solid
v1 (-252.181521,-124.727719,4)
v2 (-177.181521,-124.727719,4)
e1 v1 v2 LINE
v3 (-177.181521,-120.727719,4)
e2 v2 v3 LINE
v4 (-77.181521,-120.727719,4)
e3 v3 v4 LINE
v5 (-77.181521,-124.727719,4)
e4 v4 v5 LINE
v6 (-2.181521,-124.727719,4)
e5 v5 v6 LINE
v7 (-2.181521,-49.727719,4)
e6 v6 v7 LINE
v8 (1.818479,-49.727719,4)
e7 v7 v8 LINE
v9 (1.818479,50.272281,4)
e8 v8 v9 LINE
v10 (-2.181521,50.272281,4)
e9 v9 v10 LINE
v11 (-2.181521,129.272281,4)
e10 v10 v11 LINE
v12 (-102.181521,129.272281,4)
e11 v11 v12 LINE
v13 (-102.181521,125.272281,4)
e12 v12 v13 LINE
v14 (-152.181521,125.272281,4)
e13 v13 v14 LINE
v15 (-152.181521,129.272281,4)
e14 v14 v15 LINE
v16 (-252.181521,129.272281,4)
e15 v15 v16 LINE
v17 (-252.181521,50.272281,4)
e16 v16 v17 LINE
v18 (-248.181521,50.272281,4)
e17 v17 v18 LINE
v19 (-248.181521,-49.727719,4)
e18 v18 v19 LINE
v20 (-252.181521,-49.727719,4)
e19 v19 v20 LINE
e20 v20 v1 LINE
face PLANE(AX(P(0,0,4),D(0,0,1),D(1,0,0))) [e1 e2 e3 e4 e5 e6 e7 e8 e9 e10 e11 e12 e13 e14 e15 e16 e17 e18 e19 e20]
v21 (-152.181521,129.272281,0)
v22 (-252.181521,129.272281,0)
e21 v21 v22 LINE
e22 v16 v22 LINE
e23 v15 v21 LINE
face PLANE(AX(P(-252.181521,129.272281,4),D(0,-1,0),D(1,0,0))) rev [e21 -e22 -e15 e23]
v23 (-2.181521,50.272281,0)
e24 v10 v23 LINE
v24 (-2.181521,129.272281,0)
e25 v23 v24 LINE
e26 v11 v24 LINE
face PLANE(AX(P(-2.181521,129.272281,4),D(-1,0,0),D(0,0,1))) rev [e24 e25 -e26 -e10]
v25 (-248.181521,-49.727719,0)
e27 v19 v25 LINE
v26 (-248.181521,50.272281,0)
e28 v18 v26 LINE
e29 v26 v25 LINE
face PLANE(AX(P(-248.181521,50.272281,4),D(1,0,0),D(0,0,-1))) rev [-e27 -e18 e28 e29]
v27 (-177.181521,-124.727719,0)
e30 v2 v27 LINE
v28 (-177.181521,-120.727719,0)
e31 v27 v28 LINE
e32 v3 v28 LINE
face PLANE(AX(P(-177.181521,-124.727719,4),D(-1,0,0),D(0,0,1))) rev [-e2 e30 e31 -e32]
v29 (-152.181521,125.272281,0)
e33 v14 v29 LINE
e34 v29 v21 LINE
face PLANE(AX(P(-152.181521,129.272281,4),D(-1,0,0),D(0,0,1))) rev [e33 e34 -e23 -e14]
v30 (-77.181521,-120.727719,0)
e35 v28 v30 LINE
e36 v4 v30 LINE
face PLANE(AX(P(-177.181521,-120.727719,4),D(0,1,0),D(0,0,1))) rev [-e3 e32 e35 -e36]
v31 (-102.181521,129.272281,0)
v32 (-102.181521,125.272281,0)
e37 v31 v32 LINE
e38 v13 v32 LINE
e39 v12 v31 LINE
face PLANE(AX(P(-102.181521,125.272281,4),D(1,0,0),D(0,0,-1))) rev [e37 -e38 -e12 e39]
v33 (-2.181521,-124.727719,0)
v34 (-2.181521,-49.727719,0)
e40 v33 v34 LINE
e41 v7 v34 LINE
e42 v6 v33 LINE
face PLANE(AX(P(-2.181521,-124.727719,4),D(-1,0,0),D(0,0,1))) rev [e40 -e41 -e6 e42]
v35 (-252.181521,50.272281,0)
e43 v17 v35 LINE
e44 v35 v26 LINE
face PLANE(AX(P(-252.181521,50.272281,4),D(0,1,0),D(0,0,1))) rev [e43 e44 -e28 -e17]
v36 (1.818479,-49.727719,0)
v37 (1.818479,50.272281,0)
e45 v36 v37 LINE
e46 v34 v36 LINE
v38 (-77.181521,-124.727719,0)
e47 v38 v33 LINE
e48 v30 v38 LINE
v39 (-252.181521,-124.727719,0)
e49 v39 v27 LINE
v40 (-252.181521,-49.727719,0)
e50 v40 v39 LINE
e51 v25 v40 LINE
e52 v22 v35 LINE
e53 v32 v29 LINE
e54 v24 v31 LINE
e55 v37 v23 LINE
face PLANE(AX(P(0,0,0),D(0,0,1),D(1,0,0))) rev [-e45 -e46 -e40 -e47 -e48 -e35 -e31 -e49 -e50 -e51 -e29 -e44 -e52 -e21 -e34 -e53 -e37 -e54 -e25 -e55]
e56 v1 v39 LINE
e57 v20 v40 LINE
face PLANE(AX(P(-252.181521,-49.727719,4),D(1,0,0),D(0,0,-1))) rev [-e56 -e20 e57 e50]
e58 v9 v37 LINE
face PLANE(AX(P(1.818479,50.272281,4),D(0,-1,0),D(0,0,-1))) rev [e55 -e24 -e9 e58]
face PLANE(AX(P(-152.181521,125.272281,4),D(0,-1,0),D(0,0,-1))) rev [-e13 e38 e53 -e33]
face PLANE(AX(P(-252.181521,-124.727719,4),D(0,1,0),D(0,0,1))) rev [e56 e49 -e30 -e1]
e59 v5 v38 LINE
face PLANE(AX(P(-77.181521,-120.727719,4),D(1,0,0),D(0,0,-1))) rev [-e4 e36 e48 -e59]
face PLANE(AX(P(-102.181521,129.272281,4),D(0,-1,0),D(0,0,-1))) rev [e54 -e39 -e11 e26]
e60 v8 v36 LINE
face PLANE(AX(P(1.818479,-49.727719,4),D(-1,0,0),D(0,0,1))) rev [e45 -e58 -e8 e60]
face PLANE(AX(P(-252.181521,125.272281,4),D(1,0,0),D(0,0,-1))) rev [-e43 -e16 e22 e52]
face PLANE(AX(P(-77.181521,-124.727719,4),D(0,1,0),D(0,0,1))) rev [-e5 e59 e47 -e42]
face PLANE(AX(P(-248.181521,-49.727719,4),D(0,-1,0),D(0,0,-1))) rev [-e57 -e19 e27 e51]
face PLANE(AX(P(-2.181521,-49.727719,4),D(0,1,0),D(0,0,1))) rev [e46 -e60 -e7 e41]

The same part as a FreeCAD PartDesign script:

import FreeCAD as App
import Part
import Sketcher
from FreeCAD import Vector
Q = App.Units.Quantity

doc = App.newDocument("Part")
body = doc.addObject("PartDesign::Body", "Body")

sketch1 = body.newObject("Sketcher::SketchObject", "Sketch")
sketch1.AttachmentSupport = (doc.getObject("XY_Plane"), [""])
sketch1.MapMode = "FlatFace"
sketch1.addGeometry(Part.LineSegment(Vector(-2.2, -124.7, 0), Vector(-2.2, -49.7, 0)), False)
sketch1.addGeometry(Part.LineSegment(Vector(-2.2, -49.7, 0), Vector(1.8, -49.7, 0)), False)
sketch1.addGeometry(Part.LineSegment(Vector(1.8, -49.7, 0), Vector(1.8, 50.3, 0)), False)
sketch1.addGeometry(Part.LineSegment(Vector(1.8, 50.3, 0), Vector(-2.2, 50.3, 0)), False)
sketch1.addGeometry(Part.LineSegment(Vector(-2.2, 50.3, 0), Vector(-2.2, 129.3, 0)), False)
sketch1.addGeometry(Part.LineSegment(Vector(-2.2, 129.3, 0), Vector(-102.2, 129.3, 0)), False)
sketch1.addGeometry(Part.LineSegment(Vector(-102.2, 129.3, 0), Vector(-102.2, 125.3, 0)), False)
sketch1.addGeometry(Part.LineSegment(Vector(-102.2, 125.3, 0), Vector(-152.2, 125.3, 0)), False)
sketch1.addGeometry(Part.LineSegment(Vector(-152.2, 125.3, 0), Vector(-152.2, 129.3, 0)), False)
sketch1.addGeometry(Part.LineSegment(Vector(-152.2, 129.3, 0), Vector(-252.2, 129.3, 0)), False)
sketch1.addGeometry(Part.LineSegment(Vector(-252.2, 129.3, 0), Vector(-252.2, 50.3, 0)), False)
sketch1.addGeometry(Part.LineSegment(Vector(-252.2, 50.3, 0), Vector(-248.2, 50.3, 0)), False)
sketch1.addGeometry(Part.LineSegment(Vector(-248.2, 50.3, 0), Vector(-248.2, -49.7, 0)), False)
sketch1.addGeometry(Part.LineSegment(Vector(-248.2, -49.7, 0), Vector(-252.2, -49.7, 0)), False)
sketch1.addGeometry(Part.LineSegment(Vector(-252.2, -49.7, 0), Vector(-252.2, -124.7, 0)), False)
sketch1.addGeometry(Part.LineSegment(Vector(-252.2, -124.7, 0), Vector(-177.2, -124.7, 0)), False)
sketch1.addGeometry(Part.LineSegment(Vector(-177.2, -124.7, 0), Vector(-177.2, -120.7, 0)), False)
sketch1.addGeometry(Part.LineSegment(Vector(-177.2, -120.7, 0), Vector(-77.2, -120.7, 0)), False)
sketch1.addGeometry(Part.LineSegment(Vector(-77.2, -120.7, 0), Vector(-77.2, -124.7, 0)), False)
sketch1.addGeometry(Part.LineSegment(Vector(-77.2, -124.7, 0), Vector(-2.2, -124.7, 0)), False)
sketch1.addConstraint(Sketcher.Constraint("Coincident", 0, 2, 1, 1))
sketch1.addConstraint(Sketcher.Constraint("Coincident", 1, 2, 2, 1))
sketch1.addConstraint(Sketcher.Constraint("Coincident", 2, 2, 3, 1))
sketch1.addConstraint(Sketcher.Constraint("Coincident", 3, 2, 4, 1))
sketch1.addConstraint(Sketcher.Constraint("Coincident", 4, 2, 5, 1))
sketch1.addConstraint(Sketcher.Constraint("Coincident", 5, 2, 6, 1))
sketch1.addConstraint(Sketcher.Constraint("Coincident", 6, 2, 7, 1))
sketch1.addConstraint(Sketcher.Constraint("Coincident", 7, 2, 8, 1))
sketch1.addConstraint(Sketcher.Constraint("Coincident", 8, 2, 9, 1))
sketch1.addConstraint(Sketcher.Constraint("Coincident", 9, 2, 10, 1))
sketch1.addConstraint(Sketcher.Constraint("Coincident", 10, 2, 11, 1))
sketch1.addConstraint(Sketcher.Constraint("Coincident", 11, 2, 12, 1))
sketch1.addConstraint(Sketcher.Constraint("Coincident", 12, 2, 13, 1))
sketch1.addConstraint(Sketcher.Constraint("Coincident", 13, 2, 14, 1))
sketch1.addConstraint(Sketcher.Constraint("Coincident", 14, 2, 15, 1))
sketch1.addConstraint(Sketcher.Constraint("Coincident", 15, 2, 16, 1))
sketch1.addConstraint(Sketcher.Constraint("Coincident", 16, 2, 17, 1))
sketch1.addConstraint(Sketcher.Constraint("Coincident", 17, 2, 18, 1))
sketch1.addConstraint(Sketcher.Constraint("Coincident", 18, 2, 19, 1))
sketch1.addConstraint(Sketcher.Constraint("Coincident", 19, 2, 0, 1))
sketch1.addConstraint(Sketcher.Constraint("Vertical", 0))
sketch1.addConstraint(Sketcher.Constraint("Horizontal", 1))
sketch1.addConstraint(Sketcher.Constraint("Vertical", 2))
sketch1.addConstraint(Sketcher.Constraint("Horizontal", 3))
sketch1.addConstraint(Sketcher.Constraint("Vertical", 4))
sketch1.addConstraint(Sketcher.Constraint("Horizontal", 5))
sketch1.addConstraint(Sketcher.Constraint("Vertical", 6))
sketch1.addConstraint(Sketcher.Constraint("Horizontal", 7))
sketch1.addConstraint(Sketcher.Constraint("Vertical", 8))
sketch1.addConstraint(Sketcher.Constraint("Horizontal", 9))
sketch1.addConstraint(Sketcher.Constraint("Vertical", 10))
sketch1.addConstraint(Sketcher.Constraint("Horizontal", 11))
sketch1.addConstraint(Sketcher.Constraint("Vertical", 12))
sketch1.addConstraint(Sketcher.Constraint("Horizontal", 13))
sketch1.addConstraint(Sketcher.Constraint("Vertical", 14))
sketch1.addConstraint(Sketcher.Constraint("Horizontal", 15))
sketch1.addConstraint(Sketcher.Constraint("Vertical", 16))
sketch1.addConstraint(Sketcher.Constraint("Horizontal", 17))
sketch1.addConstraint(Sketcher.Constraint("Vertical", 18))
sketch1.addConstraint(Sketcher.Constraint("Horizontal", 19))
sketch1.addConstraint(Sketcher.Constraint("Horizontal", 5, 2, 8, 2))
sketch1.addConstraint(Sketcher.Constraint("Horizontal", 3, 2, 10, 2))
sketch1.addConstraint(Sketcher.Constraint("Horizontal", 1, 2, 12, 2))
sketch1.addConstraint(Sketcher.Constraint("Horizontal", 15, 2, 18, 2))
sketch1.addConstraint(Sketcher.Constraint("Vertical", 0, 2, 3, 2))
sketch1.addConstraint(Sketcher.Constraint("Vertical", 10, 2, 13, 2))
sketch1.addConstraint(Sketcher.Constraint("Equal", 5, 9))
sketch1.addConstraint(Sketcher.Constraint("Equal", 3, 11))
sketch1.addConstraint(Sketcher.Constraint("Equal", 9, 17))
sketch1.addConstraint(Sketcher.Constraint("Equal", 15, 19))
sketch1.addConstraint(Sketcher.Constraint("Equal", 19, 0))
sketch1.addConstraint(Sketcher.Constraint("Equal", 17, 2))
sketch1.addConstraint(Sketcher.Constraint("Equal", 13, 6))
sketch1.addConstraint(Sketcher.Constraint("Equal", 8, 16))
sketch1.addConstraint(Sketcher.Constraint("DistanceX", 1, 1, 1, 2, Q("4 mm")))
sketch1.addConstraint(Sketcher.Constraint("DistanceX", 5, 2, 5, 1, Q("100 mm")))
sketch1.addConstraint(Sketcher.Constraint("DistanceX", 7, 2, 7, 1, Q("50 mm")))
sketch1.addConstraint(Sketcher.Constraint("DistanceY", 4, 1, 4, 2, Q("79 mm")))
sketch1.addConstraint(Sketcher.Constraint("DistanceX", 0, 2, -1, 1, Q("2.181521 mm")))
sketch1.addConstraint(Sketcher.Constraint("DistanceY", 0, 2, -1, 1, Q("49.727719 mm")))
pad1 = body.newObject("PartDesign::Pad", "Pad")
pad1.Profile = sketch1
pad1.Length = 4

doc.recompute()
